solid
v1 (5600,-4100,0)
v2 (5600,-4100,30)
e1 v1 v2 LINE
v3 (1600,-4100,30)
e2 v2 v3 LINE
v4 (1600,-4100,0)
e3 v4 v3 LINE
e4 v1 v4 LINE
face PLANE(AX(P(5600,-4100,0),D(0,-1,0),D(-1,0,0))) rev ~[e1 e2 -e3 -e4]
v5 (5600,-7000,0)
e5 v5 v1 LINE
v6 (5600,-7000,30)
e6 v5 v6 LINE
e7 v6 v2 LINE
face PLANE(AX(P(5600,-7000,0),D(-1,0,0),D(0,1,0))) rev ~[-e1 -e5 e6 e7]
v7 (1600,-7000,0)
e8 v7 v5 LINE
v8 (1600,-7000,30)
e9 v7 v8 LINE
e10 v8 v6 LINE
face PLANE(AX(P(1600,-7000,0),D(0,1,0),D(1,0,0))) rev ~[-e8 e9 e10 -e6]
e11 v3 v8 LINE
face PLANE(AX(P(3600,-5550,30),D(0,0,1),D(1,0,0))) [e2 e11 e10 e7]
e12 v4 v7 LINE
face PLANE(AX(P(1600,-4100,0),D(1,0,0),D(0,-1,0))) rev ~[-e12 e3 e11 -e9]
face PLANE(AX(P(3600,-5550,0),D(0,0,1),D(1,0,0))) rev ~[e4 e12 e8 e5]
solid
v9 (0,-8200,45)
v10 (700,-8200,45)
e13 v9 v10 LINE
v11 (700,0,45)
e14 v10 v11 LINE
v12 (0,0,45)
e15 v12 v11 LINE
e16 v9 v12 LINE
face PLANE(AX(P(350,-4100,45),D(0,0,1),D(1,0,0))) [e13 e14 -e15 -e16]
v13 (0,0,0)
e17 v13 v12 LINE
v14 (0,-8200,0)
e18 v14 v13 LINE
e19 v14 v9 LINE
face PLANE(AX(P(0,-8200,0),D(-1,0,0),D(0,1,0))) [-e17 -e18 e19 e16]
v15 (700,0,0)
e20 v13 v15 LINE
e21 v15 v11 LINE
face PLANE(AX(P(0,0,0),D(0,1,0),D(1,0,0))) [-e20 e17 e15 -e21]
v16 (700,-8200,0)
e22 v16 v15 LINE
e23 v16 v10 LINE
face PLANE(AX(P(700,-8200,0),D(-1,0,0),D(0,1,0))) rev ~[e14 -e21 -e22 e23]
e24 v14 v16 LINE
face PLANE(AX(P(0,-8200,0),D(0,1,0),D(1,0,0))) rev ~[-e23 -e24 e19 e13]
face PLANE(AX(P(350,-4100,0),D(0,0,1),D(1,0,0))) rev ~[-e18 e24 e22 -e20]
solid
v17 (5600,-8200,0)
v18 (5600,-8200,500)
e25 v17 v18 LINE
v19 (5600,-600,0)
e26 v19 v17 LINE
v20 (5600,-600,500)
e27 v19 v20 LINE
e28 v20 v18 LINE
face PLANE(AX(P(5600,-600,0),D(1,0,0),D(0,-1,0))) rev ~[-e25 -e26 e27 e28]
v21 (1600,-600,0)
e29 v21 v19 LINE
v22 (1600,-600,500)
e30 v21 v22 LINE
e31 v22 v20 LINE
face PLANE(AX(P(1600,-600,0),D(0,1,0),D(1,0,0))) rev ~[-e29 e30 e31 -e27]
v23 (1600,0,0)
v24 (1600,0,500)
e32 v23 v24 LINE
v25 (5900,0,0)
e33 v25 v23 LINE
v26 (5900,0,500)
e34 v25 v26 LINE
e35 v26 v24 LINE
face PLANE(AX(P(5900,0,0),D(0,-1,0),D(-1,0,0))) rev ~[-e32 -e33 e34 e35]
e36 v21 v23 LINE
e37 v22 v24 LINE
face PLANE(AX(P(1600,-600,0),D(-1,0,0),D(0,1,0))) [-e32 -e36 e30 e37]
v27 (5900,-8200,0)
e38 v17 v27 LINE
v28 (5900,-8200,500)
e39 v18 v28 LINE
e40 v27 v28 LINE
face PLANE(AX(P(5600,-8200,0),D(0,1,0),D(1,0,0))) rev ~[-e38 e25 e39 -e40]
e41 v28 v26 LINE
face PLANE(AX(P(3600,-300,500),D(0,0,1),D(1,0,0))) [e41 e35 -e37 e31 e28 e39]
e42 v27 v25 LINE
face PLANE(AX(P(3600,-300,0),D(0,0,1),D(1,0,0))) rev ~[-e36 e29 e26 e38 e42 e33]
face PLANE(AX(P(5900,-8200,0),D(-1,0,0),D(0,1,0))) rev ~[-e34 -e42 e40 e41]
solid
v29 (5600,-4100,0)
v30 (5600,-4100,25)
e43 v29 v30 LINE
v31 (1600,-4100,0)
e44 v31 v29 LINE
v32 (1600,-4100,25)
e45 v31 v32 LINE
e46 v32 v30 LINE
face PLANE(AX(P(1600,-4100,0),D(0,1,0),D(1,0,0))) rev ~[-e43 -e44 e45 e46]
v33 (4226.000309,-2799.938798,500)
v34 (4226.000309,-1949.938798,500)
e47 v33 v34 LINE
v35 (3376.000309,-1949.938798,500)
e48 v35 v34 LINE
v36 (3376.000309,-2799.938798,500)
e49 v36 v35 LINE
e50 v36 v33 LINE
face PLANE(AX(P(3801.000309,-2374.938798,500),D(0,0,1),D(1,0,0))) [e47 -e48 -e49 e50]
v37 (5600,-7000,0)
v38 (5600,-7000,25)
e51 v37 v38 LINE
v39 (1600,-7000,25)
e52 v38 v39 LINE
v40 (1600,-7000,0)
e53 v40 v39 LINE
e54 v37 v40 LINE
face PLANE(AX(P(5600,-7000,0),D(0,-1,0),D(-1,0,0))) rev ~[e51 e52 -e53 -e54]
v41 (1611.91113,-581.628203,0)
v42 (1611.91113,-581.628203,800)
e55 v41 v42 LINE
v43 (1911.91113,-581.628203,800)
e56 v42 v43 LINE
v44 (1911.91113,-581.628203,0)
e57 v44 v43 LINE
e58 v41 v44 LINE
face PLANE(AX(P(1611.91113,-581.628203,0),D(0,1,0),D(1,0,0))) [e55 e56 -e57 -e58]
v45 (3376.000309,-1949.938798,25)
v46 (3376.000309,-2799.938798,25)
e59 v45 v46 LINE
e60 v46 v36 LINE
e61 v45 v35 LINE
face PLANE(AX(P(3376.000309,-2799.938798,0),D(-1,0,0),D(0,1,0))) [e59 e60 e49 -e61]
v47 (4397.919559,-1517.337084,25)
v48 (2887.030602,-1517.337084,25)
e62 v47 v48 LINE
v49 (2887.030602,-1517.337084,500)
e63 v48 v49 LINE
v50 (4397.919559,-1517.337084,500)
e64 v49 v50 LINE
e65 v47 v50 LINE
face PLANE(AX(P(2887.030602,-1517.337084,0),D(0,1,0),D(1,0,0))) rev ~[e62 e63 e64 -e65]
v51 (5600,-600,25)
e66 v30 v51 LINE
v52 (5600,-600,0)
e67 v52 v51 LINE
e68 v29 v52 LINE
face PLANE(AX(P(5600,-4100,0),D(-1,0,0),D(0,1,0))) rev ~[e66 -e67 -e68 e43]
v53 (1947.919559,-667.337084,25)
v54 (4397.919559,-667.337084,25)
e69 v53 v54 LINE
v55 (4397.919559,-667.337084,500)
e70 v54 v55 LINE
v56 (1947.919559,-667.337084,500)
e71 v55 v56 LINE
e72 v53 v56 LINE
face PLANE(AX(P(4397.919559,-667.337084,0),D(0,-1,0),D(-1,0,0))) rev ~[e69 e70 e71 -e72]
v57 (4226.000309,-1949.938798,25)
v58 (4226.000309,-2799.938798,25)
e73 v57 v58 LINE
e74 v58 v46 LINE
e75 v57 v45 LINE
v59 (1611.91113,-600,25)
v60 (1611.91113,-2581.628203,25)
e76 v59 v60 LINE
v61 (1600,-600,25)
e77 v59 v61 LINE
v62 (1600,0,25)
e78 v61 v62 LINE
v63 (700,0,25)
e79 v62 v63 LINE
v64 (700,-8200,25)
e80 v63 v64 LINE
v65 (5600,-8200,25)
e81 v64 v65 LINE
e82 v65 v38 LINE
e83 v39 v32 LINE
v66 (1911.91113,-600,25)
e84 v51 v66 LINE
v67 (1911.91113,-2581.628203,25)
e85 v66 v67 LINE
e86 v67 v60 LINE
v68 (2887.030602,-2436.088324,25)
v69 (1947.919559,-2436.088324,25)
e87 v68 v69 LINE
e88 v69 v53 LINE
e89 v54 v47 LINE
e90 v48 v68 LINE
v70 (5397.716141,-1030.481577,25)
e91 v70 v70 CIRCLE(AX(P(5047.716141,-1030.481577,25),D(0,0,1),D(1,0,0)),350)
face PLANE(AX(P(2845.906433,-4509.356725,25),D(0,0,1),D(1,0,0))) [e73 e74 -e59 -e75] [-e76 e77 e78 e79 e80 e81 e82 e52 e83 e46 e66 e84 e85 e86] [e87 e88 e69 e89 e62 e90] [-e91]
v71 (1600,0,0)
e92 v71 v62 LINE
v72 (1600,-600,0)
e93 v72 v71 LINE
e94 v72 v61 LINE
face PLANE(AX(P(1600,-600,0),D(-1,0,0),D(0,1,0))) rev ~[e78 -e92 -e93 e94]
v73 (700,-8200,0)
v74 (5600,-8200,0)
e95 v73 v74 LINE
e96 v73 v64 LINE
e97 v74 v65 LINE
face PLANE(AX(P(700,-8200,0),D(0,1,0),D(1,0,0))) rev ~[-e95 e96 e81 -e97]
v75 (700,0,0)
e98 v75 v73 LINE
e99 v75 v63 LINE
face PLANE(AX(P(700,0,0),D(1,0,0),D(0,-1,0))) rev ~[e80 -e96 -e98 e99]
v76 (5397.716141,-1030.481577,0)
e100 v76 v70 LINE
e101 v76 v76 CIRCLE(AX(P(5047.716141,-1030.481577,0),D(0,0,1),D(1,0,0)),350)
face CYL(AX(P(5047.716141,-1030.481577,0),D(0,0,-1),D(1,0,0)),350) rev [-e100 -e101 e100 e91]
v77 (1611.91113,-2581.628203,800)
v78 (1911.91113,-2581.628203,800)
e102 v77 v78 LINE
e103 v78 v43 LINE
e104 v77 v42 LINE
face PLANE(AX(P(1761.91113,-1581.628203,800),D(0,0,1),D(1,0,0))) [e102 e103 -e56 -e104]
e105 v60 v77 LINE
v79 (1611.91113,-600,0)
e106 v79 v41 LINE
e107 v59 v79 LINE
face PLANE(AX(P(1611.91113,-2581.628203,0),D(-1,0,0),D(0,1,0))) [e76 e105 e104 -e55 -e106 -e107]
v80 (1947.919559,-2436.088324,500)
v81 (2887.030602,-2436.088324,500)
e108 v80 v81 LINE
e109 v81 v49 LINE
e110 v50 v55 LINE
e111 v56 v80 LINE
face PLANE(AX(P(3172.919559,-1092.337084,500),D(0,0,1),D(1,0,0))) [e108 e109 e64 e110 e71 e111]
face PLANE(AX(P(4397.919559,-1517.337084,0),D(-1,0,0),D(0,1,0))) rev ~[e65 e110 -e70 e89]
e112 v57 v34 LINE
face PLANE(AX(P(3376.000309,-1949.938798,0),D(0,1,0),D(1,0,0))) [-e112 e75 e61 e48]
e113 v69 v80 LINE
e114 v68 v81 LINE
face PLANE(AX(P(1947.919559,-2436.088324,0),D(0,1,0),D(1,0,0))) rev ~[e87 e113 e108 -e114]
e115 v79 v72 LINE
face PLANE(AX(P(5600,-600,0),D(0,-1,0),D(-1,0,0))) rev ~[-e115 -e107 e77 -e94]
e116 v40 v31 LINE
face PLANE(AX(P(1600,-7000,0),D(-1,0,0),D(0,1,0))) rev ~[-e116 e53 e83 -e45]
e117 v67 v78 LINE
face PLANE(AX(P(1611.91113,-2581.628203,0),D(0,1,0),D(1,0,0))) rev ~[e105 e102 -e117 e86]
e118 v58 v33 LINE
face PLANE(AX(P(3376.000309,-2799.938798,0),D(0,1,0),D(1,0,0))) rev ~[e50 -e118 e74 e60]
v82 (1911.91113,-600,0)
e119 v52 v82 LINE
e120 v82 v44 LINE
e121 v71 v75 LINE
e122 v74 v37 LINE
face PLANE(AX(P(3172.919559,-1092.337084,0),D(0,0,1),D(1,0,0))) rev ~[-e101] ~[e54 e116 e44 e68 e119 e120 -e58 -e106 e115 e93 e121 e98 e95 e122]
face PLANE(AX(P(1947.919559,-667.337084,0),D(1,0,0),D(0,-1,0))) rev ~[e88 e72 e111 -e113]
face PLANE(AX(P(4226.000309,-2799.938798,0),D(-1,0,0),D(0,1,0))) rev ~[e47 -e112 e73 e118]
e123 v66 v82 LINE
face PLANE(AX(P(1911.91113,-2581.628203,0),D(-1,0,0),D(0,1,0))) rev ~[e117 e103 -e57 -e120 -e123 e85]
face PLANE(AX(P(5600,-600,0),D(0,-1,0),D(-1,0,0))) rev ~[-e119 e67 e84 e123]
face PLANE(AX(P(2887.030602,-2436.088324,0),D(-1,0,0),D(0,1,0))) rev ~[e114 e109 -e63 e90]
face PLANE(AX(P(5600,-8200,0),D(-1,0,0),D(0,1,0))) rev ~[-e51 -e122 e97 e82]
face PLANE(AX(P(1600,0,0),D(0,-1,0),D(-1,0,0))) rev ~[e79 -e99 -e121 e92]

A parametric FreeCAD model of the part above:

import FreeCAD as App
import Part
import Sketcher

doc = App.newDocument("Part")
params = doc.addObject("Spreadsheet::Sheet", "Params")
for row, (alias, value) in enumerate([
    ("sketch1_width", "4000 mm"),
    ("sketch1_width2", "300 mm"),
    ("sketch1_height", "600 mm"),
    ("sketch1_height2", "7600 mm"),
    ("pad1_length", "500 mm"),
    ("sketch2_diameter", "700 mm"),
    ("sketch2_width", "900 mm"),
    ("sketch2_width2", "4900 mm"),
    ("sketch2_height", "8200 mm"),
    ("sketch2_height2", "1200 mm"),
    ("pad2_length", "25 mm"),
    ("sketch3_width", "2450 mm"),
    ("sketch3_width2", "850 mm"),
    ("pad3_length", "500 mm"),
    ("sketch4_width", "300 mm"),
    ("sketch4_height", "2000 mm"),
    ("pad4_length", "800 mm"),
    ("sketch5_width", "700 mm"),
    ("sketch5_height", "8200 mm"),
    ("pad5_length", "45 mm"),
    ("sketch6_width", "4000 mm"),
    ("sketch6_height", "2900 mm"),
    ("pad6_length", "30 mm"),
], start=1):
    params.set(f"A{row}", alias)
    params.set(f"B{row}", "=" + value)
    params.setAlias(f"B{row}", alias)

body = doc.addObject("PartDesign::Body", "Body")

# Sketch on XY plane
sketch1 = body.newObject("Sketcher::SketchObject", "Sketch")
sketch1.AttachmentSupport = (doc.getObject("XY_Plane"), [""])
sketch1.MapMode = "FlatFace"
sketch1.addGeometry(Part.LineSegment(App.Vector(1600, 0, 0), App.Vector(1600, -600, 0)), False)
sketch1.addGeometry(Part.LineSegment(App.Vector(1600, -600, 0), App.Vector(5600, -600, 0)), False)
sketch1.addGeometry(Part.LineSegment(App.Vector(5600, -600, 0), App.Vector(5600, -8200, 0)), False)
sketch1.addGeometry(Part.LineSegment(App.Vector(5600, -8200, 0), App.Vector(5900, -8200, 0)), False)
sketch1.addGeometry(Part.LineSegment(App.Vector(5900, -8200, 0), App.Vector(5900, 0, 0)), False)
sketch1.addGeometry(Part.LineSegment(App.Vector(5900, 0, 0), App.Vector(1600, 0, 0)), False)
sketch1.addConstraint(Sketcher.Constraint("Coincident", 0, 2, 1, 1))
sketch1.addConstraint(Sketcher.Constraint("Coincident", 1, 2, 2, 1))
sketch1.addConstraint(Sketcher.Constraint("Coincident", 2, 2, 3, 1))
sketch1.addConstraint(Sketcher.Constraint("Coincident", 3, 2, 4, 1))
sketch1.addConstraint(Sketcher.Constraint("Coincident", 4, 2, 5, 1))
sketch1.addConstraint(Sketcher.Constraint("Coincident", 5, 2, 0, 1))
sketch1.addConstraint(Sketcher.Constraint("Vertical", 0))
sketch1.addConstraint(Sketcher.Constraint("Horizontal", 1))
sketch1.addConstraint(Sketcher.Constraint("Vertical", 2))
sketch1.addConstraint(Sketcher.Constraint("Horizontal", 3))
sketch1.addConstraint(Sketcher.Constraint("Vertical", 4))
sketch1.addConstraint(Sketcher.Constraint("Horizontal", 5))
sketch1.addConstraint(Sketcher.Constraint("PointOnObject", 4, 2, -1))
sketch1.addConstraint(Sketcher.Constraint("DistanceX", 1, 1, 1, 2, 4000.0))
sketch1.addConstraint(Sketcher.Constraint("DistanceX", 3, 1, 3, 2, 300.0))
sketch1.addConstraint(Sketcher.Constraint("DistanceY", 0, 2, 0, 1, 600.0))
sketch1.addConstraint(Sketcher.Constraint("DistanceY", 2, 2, 2, 1, 7600.0))
sketch1.addConstraint(Sketcher.Constraint("DistanceX", -1, 1, 0, 2, 1600.0))
sketch1.setExpression("Constraints[13]", "Params.sketch1_width")
sketch1.setExpression("Constraints[14]", "Params.sketch1_width2")
sketch1.setExpression("Constraints[15]", "Params.sketch1_height")
sketch1.setExpression("Constraints[16]", "Params.sketch1_height2")
pad1 = body.newObject("PartDesign::Pad", "Pad")
pad1.Profile = sketch1
pad1.setExpression("Length", "Params.pad1_length")
body2 = doc.addObject("PartDesign::Body", "Body001")

# Sketch on XY plane
sketch2 = body2.newObject("Sketcher::SketchObject", "Sketch001")
sketch2.AttachmentSupport = (doc.getObject("XY_Plane001"), [""])
sketch2.MapMode = "FlatFace"
sketch2.addGeometry(Part.LineSegment(App.Vector(1600, 0, 0), App.Vector(700, 0, 0)), False)
sketch2.addGeometry(Part.LineSegment(App.Vector(700, 0, 0), App.Vector(700, -8200, 0)), False)
sketch2.addGeometry(Part.LineSegment(App.Vector(700, -8200, 0), App.Vector(5600, -8200, 0)), False)
sketch2.addGeometry(Part.LineSegment(App.Vector(5600, -8200, 0), App.Vector(5600, -7000, 0)), False)
sketch2.addGeometry(Part.LineSegment(App.Vector(5600, -7000, 0), App.Vector(1600, -7000, 0)), False)
sketch2.addGeometry(Part.LineSegment(App.Vector(1600, -7000, 0), App.Vector(1600, -4100, 0)), False)
sketch2.addGeometry(Part.LineSegment(App.Vector(1600, -4100, 0), App.Vector(5600, -4100, 0)), False)
sketch2.addGeometry(Part.LineSegment(App.Vector(5600, -4100, 0), App.Vector(5600, -600, 0)), False)
sketch2.addGeometry(Part.LineSegment(App.Vector(5600, -600, 0), App.Vector(1600, -600, 0)), False)
sketch2.addGeometry(Part.LineSegment(App.Vector(1600, -600, 0), App.Vector(1600, 0, 0)), False)
sketch2.addGeometry(Part.Circle(App.Vector(5047.716141, -1030.481577, 0), App.Vector(0, 0, 1), 350), False)
sketch2.addConstraint(Sketcher.Constraint("Coincident", 0, 2, 1, 1))
sketch2.addConstraint(Sketcher.Constraint("Coincident", 1, 2, 2, 1))
sketch2.addConstraint(Sketcher.Constraint("Coincident", 2, 2, 3, 1))
sketch2.addConstraint(Sketcher.Constraint("Coincident", 3, 2, 4, 1))
sketch2.addConstraint(Sketcher.Constraint("Coincident", 4, 2, 5, 1))
sketch2.addConstraint(Sketcher.Constraint("Coincident", 5, 2, 6, 1))
sketch2.addConstraint(Sketcher.Constraint("Coincident", 6, 2, 7, 1))
sketch2.addConstraint(Sketcher.Constraint("Coincident", 7, 2, 8, 1))
sketch2.addConstraint(Sketcher.Constraint("Coincident", 8, 2, 9, 1))
sketch2.addConstraint(Sketcher.Constraint("Coincident", 9, 2, 0, 1))
sketch2.addConstraint(Sketcher.Constraint("Horizontal", 0))
sketch2.addConstraint(Sketcher.Constraint("Vertical", 1))
sketch2.addConstraint(Sketcher.Constraint("Horizontal", 2))
sketch2.addConstraint(Sketcher.Constraint("Vertical", 3))
sketch2.addConstraint(Sketcher.Constraint("Horizontal", 4))
sketch2.addConstraint(Sketcher.Constraint("Vertical", 5))
sketch2.addConstraint(Sketcher.Constraint("Horizontal", 6))
sketch2.addConstraint(Sketcher.Constraint("Vertical", 7))
sketch2.addConstraint(Sketcher.Constraint("Horizontal", 8))
sketch2.addConstraint(Sketcher.Constraint("Vertical", 9))
sketch2.addConstraint(Sketcher.Constraint("PointOnObject", 0, 2, -1))
sketch2.addConstraint(Sketcher.Constraint("Vertical", 3, 2, 6, 2))
sketch2.addConstraint(Sketcher.Constraint("Vertical", 5, 2, 8, 2))
sketch2.addConstraint(Sketcher.Constraint("Diameter", 10, 700.0))
sketch2.addConstraint(Sketcher.Constraint("DistanceX", 0, 2, 0, 1, 900.0))
sketch2.addConstraint(Sketcher.Constraint("DistanceX", 2, 1, 2, 2, 4900.0))
sketch2.addConstraint(Sketcher.Constraint("DistanceY", 1, 2, 1, 1, 8200.0))
sketch2.addConstraint(Sketcher.Constraint("DistanceY", 3, 1, 3, 2, 1200.0))
sketch2.addConstraint(Sketcher.Constraint("DistanceY", 5, 1, 5, 2, 2900.0))
sketch2.addConstraint(Sketcher.Constraint("DistanceY", 7, 1, 7, 2, 3500.0))
sketch2.addConstraint(Sketcher.Constraint("DistanceX", -1, 1, 0, 2, 700.0))
sketch2.addConstraint(Sketcher.Constraint("DistanceX", -1, 1, 10, 3, 5047.716141))
sketch2.addConstraint(Sketcher.Constraint("DistanceY", 10, 3, -1, 1, 1030.481577))
sketch2.setExpression("Constraints[23]", "Params.sketch2_diameter")
sketch2.setExpression("Constraints[24]", "Params.sketch2_width")
sketch2.setExpression("Constraints[25]", "Params.sketch2_width2")
sketch2.setExpression("Constraints[26]", "Params.sketch2_height")
sketch2.setExpression("Constraints[27]", "Params.sketch2_height2")
pad2 = body2.newObject("PartDesign::Pad", "Pad001")
pad2.Profile = sketch2
pad2.setExpression("Length", "Params.pad2_length")

# Sketch on XY plane
sketch3 = body2.newObject("Sketcher::SketchObject", "Sketch002")
sketch3.AttachmentSupport = (doc.getObject("XY_Plane001"), [""])
sketch3.MapMode = "FlatFace"
sketch3.addGeometry(Part.LineSegment(App.Vector(4397.919559, -667.337084, 0), App.Vector(1947.919559, -667.337084, 0)), False)
sketch3.addGeometry(Part.LineSegment(App.Vector(1947.919559, -667.337084, 0), App.Vector(1947.919559, -2436.088324, 0)), False)
sketch3.addGeometry(Part.LineSegment(App.Vector(1947.919559, -2436.088324, 0), App.Vector(2887.030602, -2436.088324, 0)), False)
sketch3.addGeometry(Part.LineSegment(App.Vector(2887.030602, -2436.088324, 0), App.Vector(2887.030602, -1517.337084, 0)), False)
sketch3.addGeometry(Part.LineSegment(App.Vector(2887.030602, -1517.337084, 0), App.Vector(4397.919559, -1517.337084, 0)), False)
sketch3.addGeometry(Part.LineSegment(App.Vector(4397.919559, -1517.337084, 0), App.Vector(4397.919559, -667.337084, 0)), False)
sketch3.addGeometry(Part.LineSegment(App.Vector(3376.000309, -1949.938798, 0), App.Vector(3376.000309, -2799.938798, 0)), False)
sketch3.addGeometry(Part.LineSegment(App.Vector(3376.000309, -2799.938798, 0), App.Vector(4226.000309, -2799.938798, 0)), False)
sketch3.addGeometry(Part.LineSegment(App.Vector(4226.000309, -2799.938798, 0), App.Vector(4226.000309, -1949.938798, 0)), False)
sketch3.addGeometry(Part.LineSegment(App.Vector(4226.000309, -1949.938798, 0), App.Vector(3376.000309, -1949.938798, 0)), False)
sketch3.addConstraint(Sketcher.Constraint("Coincident", 0, 2, 1, 1))
sketch3.addConstraint(Sketcher.Constraint("Coincident", 1, 2, 2, 1))
sketch3.addConstraint(Sketcher.Constraint("Coincident", 2, 2, 3, 1))
sketch3.addConstraint(Sketcher.Constraint("Coincident", 3, 2, 4, 1))
sketch3.addConstraint(Sketcher.Constraint("Coincident", 4, 2, 5, 1))
sketch3.addConstraint(Sketcher.Constraint("Coincident", 5, 2, 0, 1))
sketch3.addConstraint(Sketcher.Constraint("Coincident", 6, 2, 7, 1))
sketch3.addConstraint(Sketcher.Constraint("Coincident", 7, 2, 8, 1))
sketch3.addConstraint(Sketcher.Constraint("Coincident", 8, 2, 9, 1))
sketch3.addConstraint(Sketcher.Constraint("Coincident", 9, 2, 6, 1))
sketch3.addConstraint(Sketcher.Constraint("Horizontal", 0))
sketch3.addConstraint(Sketcher.Constraint("Vertical", 1))
sketch3.addConstraint(Sketcher.Constraint("Horizontal", 2))
sketch3.addConstraint(Sketcher.Constraint("Vertical", 3))
sketch3.addConstraint(Sketcher.Constraint("Horizontal", 4))
sketch3.addConstraint(Sketcher.Constraint("Vertical", 5))
sketch3.addConstraint(Sketcher.Constraint("Vertical", 6))
sketch3.addConstraint(Sketcher.Constraint("Horizontal", 7))
sketch3.addConstraint(Sketcher.Constraint("Vertical", 8))
sketch3.addConstraint(Sketcher.Constraint("Horizontal", 9))
sketch3.addConstraint(Sketcher.Constraint("Equal", 9, 5))
sketch3.addConstraint(Sketcher.Constraint("Equal", 5, 6))
sketch3.addConstraint(Sketcher.Constraint("DistanceX", 0, 2, 0, 1, 2450.0))
sketch3.addConstraint(Sketcher.Constraint("DistanceX", 7, 1, 7, 2, 850.0))
sketch3.addConstraint(Sketcher.Constraint("DistanceY", 1, 2, 1, 1, 1768.75124))
sketch3.addConstraint(Sketcher.Constraint("DistanceX", -1, 1, 2, 2, 2887.030602))
sketch3.addConstraint(Sketcher.Constraint("DistanceX", 2, 1, 2, 2, 939.111042))
sketch3.addConstraint(Sketcher.Constraint("DistanceX", -1, 1, 6, 2, 3376.000309))
sketch3.addConstraint(Sketcher.Constraint("DistanceY", 0, 2, -1, 1, 667.337084))
sketch3.addConstraint(Sketcher.Constraint("DistanceY", 6, 2, -1, 1, 2799.938798))
sketch3.setExpression("Constraints[22]", "Params.sketch3_width")
sketch3.setExpression("Constraints[23]", "Params.sketch3_width2")
pad3 = body2.newObject("PartDesign::Pad", "Pad002")
pad3.Profile = sketch3
pad3.setExpression("Length", "Params.pad3_length")

# Sketch on XY plane
sketch4 = body2.newObject("Sketcher::SketchObject", "Sketch003")
sketch4.AttachmentSupport = (doc.getObject("XY_Plane001"), [""])
sketch4.MapMode = "FlatFace"
sketch4.addGeometry(Part.LineSegment(App.Vector(1611.91113, -581.628203, 0), App.Vector(1611.91113, -2581.628203, 0)), False)
sketch4.addGeometry(Part.LineSegment(App.Vector(1611.91113, -2581.628203, 0), App.Vector(1911.91113, -2581.628203, 0)), False)
sketch4.addGeometry(Part.LineSegment(App.Vector(1911.91113, -2581.628203, 0), App.Vector(1911.91113, -581.628203, 0)), False)
sketch4.addGeometry(Part.LineSegment(App.Vector(1911.91113, -581.628203, 0), App.Vector(1611.91113, -581.628203, 0)), False)
sketch4.addConstraint(Sketcher.Constraint("Coincident", 0, 2, 1, 1))
sketch4.addConstraint(Sketcher.Constraint("Coincident", 1, 2, 2, 1))
sketch4.addConstraint(Sketcher.Constraint("Coincident", 2, 2, 3, 1))
sketch4.addConstraint(Sketcher.Constraint("Coincident", 3, 2, 0, 1))
sketch4.addConstraint(Sketcher.Constraint("Vertical", 0))
sketch4.addConstraint(Sketcher.Constraint("Horizontal", 1))
sketch4.addConstraint(Sketcher.Constraint("Vertical", 2))
sketch4.addConstraint(Sketcher.Constraint("Horizontal", 3))
sketch4.addConstraint(Sketcher.Constraint("DistanceX", 1, 1, 1, 2, 300.0))
sketch4.addConstraint(Sketcher.Constraint("DistanceY", 0, 2, 0, 1, 2000.0))
sketch4.addConstraint(Sketcher.Constraint("DistanceX", -1, 1, 0, 2, 1611.91113))
sketch4.addConstraint(Sketcher.Constraint("DistanceY", 0, 2, -1, 1, 2581.628203))
sketch4.setExpression("Constraints[8]", "Params.sketch4_width")
sketch4.setExpression("Constraints[9]", "Params.sketch4_height")
pad4 = body2.newObject("PartDesign::Pad", "Pad003")
pad4.Profile = sketch4
pad4.setExpression("Length", "Params.pad4_length")
body3 = doc.addObject("PartDesign::Body", "Body002")

# Sketch on XY plane
sketch5 = body3.newObject("Sketcher::SketchObject", "Sketch004")
sketch5.AttachmentSupport = (doc.getObject("XY_Plane002"), [""])
sketch5.MapMode = "FlatFace"
sketch5.addGeometry(Part.LineSegment(App.Vector(0, 0, 0), App.Vector(0, -8200, 0)), False)
sketch5.addGeometry(Part.LineSegment(App.Vector(0, -8200, 0), App.Vector(700, -8200, 0)), False)
sketch5.addGeometry(Part.LineSegment(App.Vector(700, -8200, 0), App.Vector(700, 0, 0)), False)
sketch5.addGeometry(Part.LineSegment(App.Vector(700, 0, 0), App.Vector(0, 0, 0)), False)
sketch5.addConstraint(Sketcher.Constraint("Coincident", 0, 2, 1, 1))
sketch5.addConstraint(Sketcher.Constraint("Coincident", 1, 2, 2, 1))
sketch5.addConstraint(Sketcher.Constraint("Coincident", 2, 2, 3, 1))
sketch5.addConstraint(Sketcher.Constraint("Coincident", 3, 2, 0, 1))
sketch5.addConstraint(Sketcher.Constraint("Vertical", 0))
sketch5.addConstraint(Sketcher.Constraint("Horizontal", 1))
sketch5.addConstraint(Sketcher.Constraint("Vertical", 2))
sketch5.addConstraint(Sketcher.Constraint("Horizontal", 3))
sketch5.addConstraint(Sketcher.Constraint("Coincident", 3, 2, -1, 1))
sketch5.addConstraint(Sketcher.Constraint("DistanceX", 1, 1, 1, 2, 700.0))
sketch5.addConstraint(Sketcher.Constraint("DistanceY", 0, 2, 0, 1, 8200.0))
sketch5.setExpression("Constraints[9]", "Params.sketch5_width")
sketch5.setExpression("Constraints[10]", "Params.sketch5_height")
pad5 = body3.newObject("PartDesign::Pad", "Pad004")
pad5.Profile = sketch5
pad5.setExpression("Length", "Params.pad5_length")
body4 = doc.addObject("PartDesign::Body", "Body003")

# Sketch on XY plane
sketch6 = body4.newObject("Sketcher::SketchObject", "Sketch005")
sketch6.AttachmentSupport = (doc.getObject("XY_Plane003"), [""])
sketch6.MapMode = "FlatFace"
sketch6.addGeometry(Part.LineSegment(App.Vector(5600, -7000, 0), App.Vector(5600, -4100, 0)), False)
sketch6.addGeometry(Part.LineSegment(App.Vector(5600, -4100, 0), App.Vector(1600, -4100, 0)), False)
sketch6.addGeometry(Part.LineSegment(App.Vector(1600, -4100, 0), App.Vector(1600, -7000, 0)), False)
sketch6.addGeometry(Part.LineSegment(App.Vector(1600, -7000, 0), App.Vector(5600, -7000, 0)), False)
sketch6.addConstraint(Sketcher.Constraint("Coincident", 0, 2, 1, 1))
sketch6.addConstraint(Sketcher.Constraint("Coincident", 1, 2, 2, 1))
sketch6.addConstraint(Sketcher.Constraint("Coincident", 2, 2, 3, 1))
sketch6.addConstraint(Sketcher.Constraint("Coincident", 3, 2, 0, 1))
sketch6.addConstraint(Sketcher.Constraint("Vertical", 0))
sketch6.addConstraint(Sketcher.Constraint("Horizontal", 1))
sketch6.addConstraint(Sketcher.Constraint("Vertical", 2))
sketch6.addConstraint(Sketcher.Constraint("Horizontal", 3))
sketch6.addConstraint(Sketcher.Constraint("DistanceX", 1, 2, 1, 1, 4000.0))
sketch6.addConstraint(Sketcher.Constraint("DistanceY", 0, 1, 0, 2, 2900.0))
sketch6.addConstraint(Sketcher.Constraint("DistanceX", -1, 1, 0, 2, 5600.0))
sketch6.addConstraint(Sketcher.Constraint("DistanceY", 0, 2, -1, 1, 4100.0))
sketch6.setExpression("Constraints[8]", "Params.sketch6_width")
sketch6.setExpression("Constraints[9]", "Params.sketch6_height")
pad6 = body4.newObject("PartDesign::Pad", "Pad005")
pad6.Profile = sketch6
pad6.setExpression("Length", "Params.pad6_length")

doc.recompute()
